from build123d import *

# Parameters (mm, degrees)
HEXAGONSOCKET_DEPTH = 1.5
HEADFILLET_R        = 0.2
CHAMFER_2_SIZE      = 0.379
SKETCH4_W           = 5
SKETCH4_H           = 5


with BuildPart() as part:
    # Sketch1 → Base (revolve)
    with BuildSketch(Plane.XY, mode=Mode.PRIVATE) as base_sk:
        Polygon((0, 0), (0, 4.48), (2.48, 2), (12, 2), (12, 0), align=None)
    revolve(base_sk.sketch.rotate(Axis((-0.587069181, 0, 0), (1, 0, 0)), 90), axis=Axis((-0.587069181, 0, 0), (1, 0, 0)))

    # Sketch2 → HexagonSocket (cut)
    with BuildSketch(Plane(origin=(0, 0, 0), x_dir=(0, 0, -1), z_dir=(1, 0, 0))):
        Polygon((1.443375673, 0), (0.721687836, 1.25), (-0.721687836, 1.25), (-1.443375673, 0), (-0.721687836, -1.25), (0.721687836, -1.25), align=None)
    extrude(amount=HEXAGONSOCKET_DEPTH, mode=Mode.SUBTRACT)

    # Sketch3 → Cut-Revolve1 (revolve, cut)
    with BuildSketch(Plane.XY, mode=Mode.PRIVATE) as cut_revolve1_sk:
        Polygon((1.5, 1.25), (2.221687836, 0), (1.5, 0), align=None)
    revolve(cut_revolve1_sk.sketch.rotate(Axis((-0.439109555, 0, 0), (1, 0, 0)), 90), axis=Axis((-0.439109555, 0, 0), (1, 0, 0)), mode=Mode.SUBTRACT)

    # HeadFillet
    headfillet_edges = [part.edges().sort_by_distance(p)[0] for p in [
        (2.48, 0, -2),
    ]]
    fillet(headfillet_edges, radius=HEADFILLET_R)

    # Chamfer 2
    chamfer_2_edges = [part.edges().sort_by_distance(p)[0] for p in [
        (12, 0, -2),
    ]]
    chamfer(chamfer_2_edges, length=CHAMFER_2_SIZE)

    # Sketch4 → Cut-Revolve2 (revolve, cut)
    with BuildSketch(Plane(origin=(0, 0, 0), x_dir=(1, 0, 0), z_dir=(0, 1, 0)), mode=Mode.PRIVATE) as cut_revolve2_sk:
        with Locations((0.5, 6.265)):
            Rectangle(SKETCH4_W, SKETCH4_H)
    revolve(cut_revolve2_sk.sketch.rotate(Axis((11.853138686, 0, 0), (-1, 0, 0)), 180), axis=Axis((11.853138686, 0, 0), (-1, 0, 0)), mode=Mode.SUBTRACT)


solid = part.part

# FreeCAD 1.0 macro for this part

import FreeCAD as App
import Part
import Sketcher
Q = App.Units.Quantity


def edges_at(feature, points):
    """Names of the edges that pass closest to the given points."""
    edges = feature.Shape.Edges
    near = lambda p: min(range(len(edges)), key=lambda i: edges[i].distToShape(Part.Vertex(*p))[0])
    return sorted({f"Edge{near(p) + 1}" for p in points})


def add_polygon(sketch, points):
    """Adds a closed chain of lines whose ends are joined by coincident constraints."""
    first, n = sketch.GeometryCount, len(points)
    for a, b in zip(points, points[1:] + points[:1]):
        sketch.addGeometry(Part.LineSegment(App.Vector(*a, 0), App.Vector(*b, 0)), False)
    for i in range(n):
        sketch.addConstraint(Sketcher.Constraint("Coincident", first + i, 2, first + (i + 1) % n, 1))

doc = App.newDocument("Part")
params = doc.addObject("Spreadsheet::Sheet", "Params")
for row, (alias, value) in enumerate([
    ("sketch1_width", "12 mm"),
    ("sketch1_height", "2 mm"),
    ("sketch1_width2", "9.52 mm"),
    ("revolution_angle", "360 deg"),
    ("pocket1_length", "1.5 mm"),
    ("sketch3_height", "1.25 mm"),
    ("groove_angle", "360 deg"),
    ("fillet_radius", "0.2 mm"),
    ("chamfer_size", "0.379 mm"),
    ("sketch4_width", "5 mm"),
    ("groove2_angle", "360 deg"),
], start=1):
    params.set(f"A{row}", alias)
    params.set(f"B{row}", "=" + value)
    params.setAlias(f"B{row}", alias)

body = doc.addObject("PartDesign::Body", "Body")

# Sketch on XY plane
sketch1 = body.newObject("Sketcher::SketchObject", "Sketch")
sketch1.AttachmentSupport = (doc.getObject("XY_Plane"), [""])
sketch1.MapMode = "FlatFace"
add_polygon(sketch1, [(0, 4.5), (0, 0), (12, 0), (12, 2), (2.5, 2)])  # lines 0-4
sketch1.addConstraint(Sketcher.Constraint("Vertical", 0))
sketch1.addConstraint(Sketcher.Constraint("Horizontal", 1))
sketch1.addConstraint(Sketcher.Constraint("Vertical", 2))
sketch1.addConstraint(Sketcher.Constraint("Horizontal", 3))
sketch1.addConstraint(Sketcher.Constraint("Coincident", 0, 2, -1, 1))
sketch1.addConstraint(Sketcher.Constraint("DistanceX", 1, 1, 1, 2, Q("12 mm")))
sketch1.addConstraint(Sketcher.Constraint("DistanceY", 2, 1, 2, 2, Q("2 mm")))
sketch1.addConstraint(Sketcher.Constraint("Angle", 4, Q("135 deg")))
sketch1.addConstraint(Sketcher.Constraint("DistanceX", 3, 2, 3, 1, Q("9.52 mm")))
sketch1.setExpression("Constraints[10]", "Params.sketch1_width")
sketch1.setExpression("Constraints[11]", "Params.sketch1_height")
sketch1.setExpression("Constraints[13]", "Params.sketch1_width2")
revolution = body.newObject("PartDesign::Revolution", "Revolution")
revolution.Profile = sketch1
revolution.ReferenceAxis = (sketch1, ["H_Axis"])
revolution.setExpression("Angle", "Params.revolution_angle")

# Sketch on YZ plane
sketch2 = body.newObject("Sketcher::SketchObject", "Sketch001")
sketch2.AttachmentSupport = (doc.getObject("YZ_Plane"), [""])
sketch2.MapMode = "FlatFace"
add_polygon(sketch2, [(0, -1.4), (1.2, -0.7), (1.2, 0.7), (0, 1.4), (-1.2, 0.7), (-1.2, -0.7)])  # lines 0-5
sketch2.addConstraint(Sketcher.Constraint("Vertical", 1))
sketch2.addConstraint(Sketcher.Constraint("Vertical", 4))
sketch2.addConstraint(Sketcher.Constraint("Symmetric", 0, 2, 3, 2, -1, 1))
sketch2.addConstraint(Sketcher.Constraint("Symmetric", 2, 2, 5, 2, -1, 1))
sketch2.addConstraint(Sketcher.Constraint("PointOnObject", 2, 2, -2))
sketch2.addConstraint(Sketcher.Constraint("Parallel", 2, 5))
sketch2.addConstraint(Sketcher.Constraint("Horizontal", 1, 2, 3, 2))
sketch2.addConstraint(Sketcher.Constraint("Angle", 0, Q("30 deg")))
sketch2.addConstraint(Sketcher.Constraint("DistanceX", 3, 2, 1, 2, Q("2.5 mm")))
sketch2.addConstraint(Sketcher.Constraint("DistanceY", 1, 1, 1, 2, Q("1.443376 mm")))
pocket1 = body.newObject("PartDesign::Pocket", "Pocket")
pocket1.Profile = sketch2
pocket1.setExpression("Length", "Params.pocket1_length")
pocket1.Reversed = True

# Sketch on XY plane
sketch3 = body.newObject("Sketcher::SketchObject", "Sketch002")
sketch3.AttachmentSupport = (doc.getObject("XY_Plane"), [""])
sketch3.MapMode = "FlatFace"
add_polygon(sketch3, [(2.2, 0), (1.5, 1.2), (1.5, 0)])  # lines 0-2
sketch3.addConstraint(Sketcher.Constraint("Vertical", 1))
sketch3.addConstraint(Sketcher.Constraint("Horizontal", 2))
sketch3.addConstraint(Sketcher.Constraint("PointOnObject", 1, 2, -1))
sketch3.addConstraint(Sketcher.Constraint("Angle", 0, Q("120 deg")))
sketch3.addConstraint(Sketcher.Constraint("DistanceY", 1, 2, 1, 1, Q("1.25 mm")))
sketch3.addConstraint(Sketcher.Constraint("DistanceX", -1, 1, 0, 2, Q("1.5 mm")))
sketch3.setExpression("Constraints[7]", "Params.sketch3_height")
groove = body.newObject("PartDesign::Groove", "Groove")
groove.Profile = sketch3
groove.ReferenceAxis = (sketch3, ["H_Axis"])
groove.setExpression("Angle", "Params.groove_angle")
doc.recompute()

fillet = body.newObject("PartDesign::Fillet", "Fillet")
fillet.Base = (groove, edges_at(groove, [(2.48, 0, -2)]))
fillet.setExpression("Radius", "Params.fillet_radius")
doc.recompute()

chamfer = body.newObject("PartDesign::Chamfer", "Chamfer")
chamfer.Base = (fillet, edges_at(fillet, [(12, 0, -2)]))
chamfer.setExpression("Size", "Params.chamfer_size")

# Sketch on XZ plane
sketch4 = body.newObject("Sketcher::SketchObject", "Sketch003")
sketch4.AttachmentSupport = (doc.getObject("XZ_Plane"), [""])
sketch4.MapMode = "FlatFace"
add_polygon(sketch4, [(-2, -9), (-2, -4), (3, -4), (3, -9)])  # lines 0-3
sketch4.addConstraint(Sketcher.Constraint("Vertical", 0))
sketch4.addConstraint(Sketcher.Constraint("Horizontal", 1))
sketch4.addConstraint(Sketcher.Constraint("Vertical", 2))
sketch4.addConstraint(Sketcher.Constraint("Horizontal", 3))
sketch4.addConstraint(Sketcher.Constraint("Equal", 3, 0))
sketch4.addConstraint(Sketcher.Constraint("DistanceX", 1, 1, 1, 2, Q("5 mm")))
sketch4.addConstraint(Sketcher.Constraint("DistanceX", 0, 2, -1, 1, Q("2 mm")))
sketch4.addConstraint(Sketcher.Constraint("DistanceY", 0, 2, -1, 1, Q("3.765 mm")))
sketch4.setExpression("Constraints[9]", "Params.sketch4_width")
groove2 = body.newObject("PartDesign::Groove", "Groove001")
groove2.Profile = sketch4
groove2.ReferenceAxis = (sketch4, ["H_Axis"])
groove2.setExpression("Angle", "Params.groove2_angle")

doc.recompute()
